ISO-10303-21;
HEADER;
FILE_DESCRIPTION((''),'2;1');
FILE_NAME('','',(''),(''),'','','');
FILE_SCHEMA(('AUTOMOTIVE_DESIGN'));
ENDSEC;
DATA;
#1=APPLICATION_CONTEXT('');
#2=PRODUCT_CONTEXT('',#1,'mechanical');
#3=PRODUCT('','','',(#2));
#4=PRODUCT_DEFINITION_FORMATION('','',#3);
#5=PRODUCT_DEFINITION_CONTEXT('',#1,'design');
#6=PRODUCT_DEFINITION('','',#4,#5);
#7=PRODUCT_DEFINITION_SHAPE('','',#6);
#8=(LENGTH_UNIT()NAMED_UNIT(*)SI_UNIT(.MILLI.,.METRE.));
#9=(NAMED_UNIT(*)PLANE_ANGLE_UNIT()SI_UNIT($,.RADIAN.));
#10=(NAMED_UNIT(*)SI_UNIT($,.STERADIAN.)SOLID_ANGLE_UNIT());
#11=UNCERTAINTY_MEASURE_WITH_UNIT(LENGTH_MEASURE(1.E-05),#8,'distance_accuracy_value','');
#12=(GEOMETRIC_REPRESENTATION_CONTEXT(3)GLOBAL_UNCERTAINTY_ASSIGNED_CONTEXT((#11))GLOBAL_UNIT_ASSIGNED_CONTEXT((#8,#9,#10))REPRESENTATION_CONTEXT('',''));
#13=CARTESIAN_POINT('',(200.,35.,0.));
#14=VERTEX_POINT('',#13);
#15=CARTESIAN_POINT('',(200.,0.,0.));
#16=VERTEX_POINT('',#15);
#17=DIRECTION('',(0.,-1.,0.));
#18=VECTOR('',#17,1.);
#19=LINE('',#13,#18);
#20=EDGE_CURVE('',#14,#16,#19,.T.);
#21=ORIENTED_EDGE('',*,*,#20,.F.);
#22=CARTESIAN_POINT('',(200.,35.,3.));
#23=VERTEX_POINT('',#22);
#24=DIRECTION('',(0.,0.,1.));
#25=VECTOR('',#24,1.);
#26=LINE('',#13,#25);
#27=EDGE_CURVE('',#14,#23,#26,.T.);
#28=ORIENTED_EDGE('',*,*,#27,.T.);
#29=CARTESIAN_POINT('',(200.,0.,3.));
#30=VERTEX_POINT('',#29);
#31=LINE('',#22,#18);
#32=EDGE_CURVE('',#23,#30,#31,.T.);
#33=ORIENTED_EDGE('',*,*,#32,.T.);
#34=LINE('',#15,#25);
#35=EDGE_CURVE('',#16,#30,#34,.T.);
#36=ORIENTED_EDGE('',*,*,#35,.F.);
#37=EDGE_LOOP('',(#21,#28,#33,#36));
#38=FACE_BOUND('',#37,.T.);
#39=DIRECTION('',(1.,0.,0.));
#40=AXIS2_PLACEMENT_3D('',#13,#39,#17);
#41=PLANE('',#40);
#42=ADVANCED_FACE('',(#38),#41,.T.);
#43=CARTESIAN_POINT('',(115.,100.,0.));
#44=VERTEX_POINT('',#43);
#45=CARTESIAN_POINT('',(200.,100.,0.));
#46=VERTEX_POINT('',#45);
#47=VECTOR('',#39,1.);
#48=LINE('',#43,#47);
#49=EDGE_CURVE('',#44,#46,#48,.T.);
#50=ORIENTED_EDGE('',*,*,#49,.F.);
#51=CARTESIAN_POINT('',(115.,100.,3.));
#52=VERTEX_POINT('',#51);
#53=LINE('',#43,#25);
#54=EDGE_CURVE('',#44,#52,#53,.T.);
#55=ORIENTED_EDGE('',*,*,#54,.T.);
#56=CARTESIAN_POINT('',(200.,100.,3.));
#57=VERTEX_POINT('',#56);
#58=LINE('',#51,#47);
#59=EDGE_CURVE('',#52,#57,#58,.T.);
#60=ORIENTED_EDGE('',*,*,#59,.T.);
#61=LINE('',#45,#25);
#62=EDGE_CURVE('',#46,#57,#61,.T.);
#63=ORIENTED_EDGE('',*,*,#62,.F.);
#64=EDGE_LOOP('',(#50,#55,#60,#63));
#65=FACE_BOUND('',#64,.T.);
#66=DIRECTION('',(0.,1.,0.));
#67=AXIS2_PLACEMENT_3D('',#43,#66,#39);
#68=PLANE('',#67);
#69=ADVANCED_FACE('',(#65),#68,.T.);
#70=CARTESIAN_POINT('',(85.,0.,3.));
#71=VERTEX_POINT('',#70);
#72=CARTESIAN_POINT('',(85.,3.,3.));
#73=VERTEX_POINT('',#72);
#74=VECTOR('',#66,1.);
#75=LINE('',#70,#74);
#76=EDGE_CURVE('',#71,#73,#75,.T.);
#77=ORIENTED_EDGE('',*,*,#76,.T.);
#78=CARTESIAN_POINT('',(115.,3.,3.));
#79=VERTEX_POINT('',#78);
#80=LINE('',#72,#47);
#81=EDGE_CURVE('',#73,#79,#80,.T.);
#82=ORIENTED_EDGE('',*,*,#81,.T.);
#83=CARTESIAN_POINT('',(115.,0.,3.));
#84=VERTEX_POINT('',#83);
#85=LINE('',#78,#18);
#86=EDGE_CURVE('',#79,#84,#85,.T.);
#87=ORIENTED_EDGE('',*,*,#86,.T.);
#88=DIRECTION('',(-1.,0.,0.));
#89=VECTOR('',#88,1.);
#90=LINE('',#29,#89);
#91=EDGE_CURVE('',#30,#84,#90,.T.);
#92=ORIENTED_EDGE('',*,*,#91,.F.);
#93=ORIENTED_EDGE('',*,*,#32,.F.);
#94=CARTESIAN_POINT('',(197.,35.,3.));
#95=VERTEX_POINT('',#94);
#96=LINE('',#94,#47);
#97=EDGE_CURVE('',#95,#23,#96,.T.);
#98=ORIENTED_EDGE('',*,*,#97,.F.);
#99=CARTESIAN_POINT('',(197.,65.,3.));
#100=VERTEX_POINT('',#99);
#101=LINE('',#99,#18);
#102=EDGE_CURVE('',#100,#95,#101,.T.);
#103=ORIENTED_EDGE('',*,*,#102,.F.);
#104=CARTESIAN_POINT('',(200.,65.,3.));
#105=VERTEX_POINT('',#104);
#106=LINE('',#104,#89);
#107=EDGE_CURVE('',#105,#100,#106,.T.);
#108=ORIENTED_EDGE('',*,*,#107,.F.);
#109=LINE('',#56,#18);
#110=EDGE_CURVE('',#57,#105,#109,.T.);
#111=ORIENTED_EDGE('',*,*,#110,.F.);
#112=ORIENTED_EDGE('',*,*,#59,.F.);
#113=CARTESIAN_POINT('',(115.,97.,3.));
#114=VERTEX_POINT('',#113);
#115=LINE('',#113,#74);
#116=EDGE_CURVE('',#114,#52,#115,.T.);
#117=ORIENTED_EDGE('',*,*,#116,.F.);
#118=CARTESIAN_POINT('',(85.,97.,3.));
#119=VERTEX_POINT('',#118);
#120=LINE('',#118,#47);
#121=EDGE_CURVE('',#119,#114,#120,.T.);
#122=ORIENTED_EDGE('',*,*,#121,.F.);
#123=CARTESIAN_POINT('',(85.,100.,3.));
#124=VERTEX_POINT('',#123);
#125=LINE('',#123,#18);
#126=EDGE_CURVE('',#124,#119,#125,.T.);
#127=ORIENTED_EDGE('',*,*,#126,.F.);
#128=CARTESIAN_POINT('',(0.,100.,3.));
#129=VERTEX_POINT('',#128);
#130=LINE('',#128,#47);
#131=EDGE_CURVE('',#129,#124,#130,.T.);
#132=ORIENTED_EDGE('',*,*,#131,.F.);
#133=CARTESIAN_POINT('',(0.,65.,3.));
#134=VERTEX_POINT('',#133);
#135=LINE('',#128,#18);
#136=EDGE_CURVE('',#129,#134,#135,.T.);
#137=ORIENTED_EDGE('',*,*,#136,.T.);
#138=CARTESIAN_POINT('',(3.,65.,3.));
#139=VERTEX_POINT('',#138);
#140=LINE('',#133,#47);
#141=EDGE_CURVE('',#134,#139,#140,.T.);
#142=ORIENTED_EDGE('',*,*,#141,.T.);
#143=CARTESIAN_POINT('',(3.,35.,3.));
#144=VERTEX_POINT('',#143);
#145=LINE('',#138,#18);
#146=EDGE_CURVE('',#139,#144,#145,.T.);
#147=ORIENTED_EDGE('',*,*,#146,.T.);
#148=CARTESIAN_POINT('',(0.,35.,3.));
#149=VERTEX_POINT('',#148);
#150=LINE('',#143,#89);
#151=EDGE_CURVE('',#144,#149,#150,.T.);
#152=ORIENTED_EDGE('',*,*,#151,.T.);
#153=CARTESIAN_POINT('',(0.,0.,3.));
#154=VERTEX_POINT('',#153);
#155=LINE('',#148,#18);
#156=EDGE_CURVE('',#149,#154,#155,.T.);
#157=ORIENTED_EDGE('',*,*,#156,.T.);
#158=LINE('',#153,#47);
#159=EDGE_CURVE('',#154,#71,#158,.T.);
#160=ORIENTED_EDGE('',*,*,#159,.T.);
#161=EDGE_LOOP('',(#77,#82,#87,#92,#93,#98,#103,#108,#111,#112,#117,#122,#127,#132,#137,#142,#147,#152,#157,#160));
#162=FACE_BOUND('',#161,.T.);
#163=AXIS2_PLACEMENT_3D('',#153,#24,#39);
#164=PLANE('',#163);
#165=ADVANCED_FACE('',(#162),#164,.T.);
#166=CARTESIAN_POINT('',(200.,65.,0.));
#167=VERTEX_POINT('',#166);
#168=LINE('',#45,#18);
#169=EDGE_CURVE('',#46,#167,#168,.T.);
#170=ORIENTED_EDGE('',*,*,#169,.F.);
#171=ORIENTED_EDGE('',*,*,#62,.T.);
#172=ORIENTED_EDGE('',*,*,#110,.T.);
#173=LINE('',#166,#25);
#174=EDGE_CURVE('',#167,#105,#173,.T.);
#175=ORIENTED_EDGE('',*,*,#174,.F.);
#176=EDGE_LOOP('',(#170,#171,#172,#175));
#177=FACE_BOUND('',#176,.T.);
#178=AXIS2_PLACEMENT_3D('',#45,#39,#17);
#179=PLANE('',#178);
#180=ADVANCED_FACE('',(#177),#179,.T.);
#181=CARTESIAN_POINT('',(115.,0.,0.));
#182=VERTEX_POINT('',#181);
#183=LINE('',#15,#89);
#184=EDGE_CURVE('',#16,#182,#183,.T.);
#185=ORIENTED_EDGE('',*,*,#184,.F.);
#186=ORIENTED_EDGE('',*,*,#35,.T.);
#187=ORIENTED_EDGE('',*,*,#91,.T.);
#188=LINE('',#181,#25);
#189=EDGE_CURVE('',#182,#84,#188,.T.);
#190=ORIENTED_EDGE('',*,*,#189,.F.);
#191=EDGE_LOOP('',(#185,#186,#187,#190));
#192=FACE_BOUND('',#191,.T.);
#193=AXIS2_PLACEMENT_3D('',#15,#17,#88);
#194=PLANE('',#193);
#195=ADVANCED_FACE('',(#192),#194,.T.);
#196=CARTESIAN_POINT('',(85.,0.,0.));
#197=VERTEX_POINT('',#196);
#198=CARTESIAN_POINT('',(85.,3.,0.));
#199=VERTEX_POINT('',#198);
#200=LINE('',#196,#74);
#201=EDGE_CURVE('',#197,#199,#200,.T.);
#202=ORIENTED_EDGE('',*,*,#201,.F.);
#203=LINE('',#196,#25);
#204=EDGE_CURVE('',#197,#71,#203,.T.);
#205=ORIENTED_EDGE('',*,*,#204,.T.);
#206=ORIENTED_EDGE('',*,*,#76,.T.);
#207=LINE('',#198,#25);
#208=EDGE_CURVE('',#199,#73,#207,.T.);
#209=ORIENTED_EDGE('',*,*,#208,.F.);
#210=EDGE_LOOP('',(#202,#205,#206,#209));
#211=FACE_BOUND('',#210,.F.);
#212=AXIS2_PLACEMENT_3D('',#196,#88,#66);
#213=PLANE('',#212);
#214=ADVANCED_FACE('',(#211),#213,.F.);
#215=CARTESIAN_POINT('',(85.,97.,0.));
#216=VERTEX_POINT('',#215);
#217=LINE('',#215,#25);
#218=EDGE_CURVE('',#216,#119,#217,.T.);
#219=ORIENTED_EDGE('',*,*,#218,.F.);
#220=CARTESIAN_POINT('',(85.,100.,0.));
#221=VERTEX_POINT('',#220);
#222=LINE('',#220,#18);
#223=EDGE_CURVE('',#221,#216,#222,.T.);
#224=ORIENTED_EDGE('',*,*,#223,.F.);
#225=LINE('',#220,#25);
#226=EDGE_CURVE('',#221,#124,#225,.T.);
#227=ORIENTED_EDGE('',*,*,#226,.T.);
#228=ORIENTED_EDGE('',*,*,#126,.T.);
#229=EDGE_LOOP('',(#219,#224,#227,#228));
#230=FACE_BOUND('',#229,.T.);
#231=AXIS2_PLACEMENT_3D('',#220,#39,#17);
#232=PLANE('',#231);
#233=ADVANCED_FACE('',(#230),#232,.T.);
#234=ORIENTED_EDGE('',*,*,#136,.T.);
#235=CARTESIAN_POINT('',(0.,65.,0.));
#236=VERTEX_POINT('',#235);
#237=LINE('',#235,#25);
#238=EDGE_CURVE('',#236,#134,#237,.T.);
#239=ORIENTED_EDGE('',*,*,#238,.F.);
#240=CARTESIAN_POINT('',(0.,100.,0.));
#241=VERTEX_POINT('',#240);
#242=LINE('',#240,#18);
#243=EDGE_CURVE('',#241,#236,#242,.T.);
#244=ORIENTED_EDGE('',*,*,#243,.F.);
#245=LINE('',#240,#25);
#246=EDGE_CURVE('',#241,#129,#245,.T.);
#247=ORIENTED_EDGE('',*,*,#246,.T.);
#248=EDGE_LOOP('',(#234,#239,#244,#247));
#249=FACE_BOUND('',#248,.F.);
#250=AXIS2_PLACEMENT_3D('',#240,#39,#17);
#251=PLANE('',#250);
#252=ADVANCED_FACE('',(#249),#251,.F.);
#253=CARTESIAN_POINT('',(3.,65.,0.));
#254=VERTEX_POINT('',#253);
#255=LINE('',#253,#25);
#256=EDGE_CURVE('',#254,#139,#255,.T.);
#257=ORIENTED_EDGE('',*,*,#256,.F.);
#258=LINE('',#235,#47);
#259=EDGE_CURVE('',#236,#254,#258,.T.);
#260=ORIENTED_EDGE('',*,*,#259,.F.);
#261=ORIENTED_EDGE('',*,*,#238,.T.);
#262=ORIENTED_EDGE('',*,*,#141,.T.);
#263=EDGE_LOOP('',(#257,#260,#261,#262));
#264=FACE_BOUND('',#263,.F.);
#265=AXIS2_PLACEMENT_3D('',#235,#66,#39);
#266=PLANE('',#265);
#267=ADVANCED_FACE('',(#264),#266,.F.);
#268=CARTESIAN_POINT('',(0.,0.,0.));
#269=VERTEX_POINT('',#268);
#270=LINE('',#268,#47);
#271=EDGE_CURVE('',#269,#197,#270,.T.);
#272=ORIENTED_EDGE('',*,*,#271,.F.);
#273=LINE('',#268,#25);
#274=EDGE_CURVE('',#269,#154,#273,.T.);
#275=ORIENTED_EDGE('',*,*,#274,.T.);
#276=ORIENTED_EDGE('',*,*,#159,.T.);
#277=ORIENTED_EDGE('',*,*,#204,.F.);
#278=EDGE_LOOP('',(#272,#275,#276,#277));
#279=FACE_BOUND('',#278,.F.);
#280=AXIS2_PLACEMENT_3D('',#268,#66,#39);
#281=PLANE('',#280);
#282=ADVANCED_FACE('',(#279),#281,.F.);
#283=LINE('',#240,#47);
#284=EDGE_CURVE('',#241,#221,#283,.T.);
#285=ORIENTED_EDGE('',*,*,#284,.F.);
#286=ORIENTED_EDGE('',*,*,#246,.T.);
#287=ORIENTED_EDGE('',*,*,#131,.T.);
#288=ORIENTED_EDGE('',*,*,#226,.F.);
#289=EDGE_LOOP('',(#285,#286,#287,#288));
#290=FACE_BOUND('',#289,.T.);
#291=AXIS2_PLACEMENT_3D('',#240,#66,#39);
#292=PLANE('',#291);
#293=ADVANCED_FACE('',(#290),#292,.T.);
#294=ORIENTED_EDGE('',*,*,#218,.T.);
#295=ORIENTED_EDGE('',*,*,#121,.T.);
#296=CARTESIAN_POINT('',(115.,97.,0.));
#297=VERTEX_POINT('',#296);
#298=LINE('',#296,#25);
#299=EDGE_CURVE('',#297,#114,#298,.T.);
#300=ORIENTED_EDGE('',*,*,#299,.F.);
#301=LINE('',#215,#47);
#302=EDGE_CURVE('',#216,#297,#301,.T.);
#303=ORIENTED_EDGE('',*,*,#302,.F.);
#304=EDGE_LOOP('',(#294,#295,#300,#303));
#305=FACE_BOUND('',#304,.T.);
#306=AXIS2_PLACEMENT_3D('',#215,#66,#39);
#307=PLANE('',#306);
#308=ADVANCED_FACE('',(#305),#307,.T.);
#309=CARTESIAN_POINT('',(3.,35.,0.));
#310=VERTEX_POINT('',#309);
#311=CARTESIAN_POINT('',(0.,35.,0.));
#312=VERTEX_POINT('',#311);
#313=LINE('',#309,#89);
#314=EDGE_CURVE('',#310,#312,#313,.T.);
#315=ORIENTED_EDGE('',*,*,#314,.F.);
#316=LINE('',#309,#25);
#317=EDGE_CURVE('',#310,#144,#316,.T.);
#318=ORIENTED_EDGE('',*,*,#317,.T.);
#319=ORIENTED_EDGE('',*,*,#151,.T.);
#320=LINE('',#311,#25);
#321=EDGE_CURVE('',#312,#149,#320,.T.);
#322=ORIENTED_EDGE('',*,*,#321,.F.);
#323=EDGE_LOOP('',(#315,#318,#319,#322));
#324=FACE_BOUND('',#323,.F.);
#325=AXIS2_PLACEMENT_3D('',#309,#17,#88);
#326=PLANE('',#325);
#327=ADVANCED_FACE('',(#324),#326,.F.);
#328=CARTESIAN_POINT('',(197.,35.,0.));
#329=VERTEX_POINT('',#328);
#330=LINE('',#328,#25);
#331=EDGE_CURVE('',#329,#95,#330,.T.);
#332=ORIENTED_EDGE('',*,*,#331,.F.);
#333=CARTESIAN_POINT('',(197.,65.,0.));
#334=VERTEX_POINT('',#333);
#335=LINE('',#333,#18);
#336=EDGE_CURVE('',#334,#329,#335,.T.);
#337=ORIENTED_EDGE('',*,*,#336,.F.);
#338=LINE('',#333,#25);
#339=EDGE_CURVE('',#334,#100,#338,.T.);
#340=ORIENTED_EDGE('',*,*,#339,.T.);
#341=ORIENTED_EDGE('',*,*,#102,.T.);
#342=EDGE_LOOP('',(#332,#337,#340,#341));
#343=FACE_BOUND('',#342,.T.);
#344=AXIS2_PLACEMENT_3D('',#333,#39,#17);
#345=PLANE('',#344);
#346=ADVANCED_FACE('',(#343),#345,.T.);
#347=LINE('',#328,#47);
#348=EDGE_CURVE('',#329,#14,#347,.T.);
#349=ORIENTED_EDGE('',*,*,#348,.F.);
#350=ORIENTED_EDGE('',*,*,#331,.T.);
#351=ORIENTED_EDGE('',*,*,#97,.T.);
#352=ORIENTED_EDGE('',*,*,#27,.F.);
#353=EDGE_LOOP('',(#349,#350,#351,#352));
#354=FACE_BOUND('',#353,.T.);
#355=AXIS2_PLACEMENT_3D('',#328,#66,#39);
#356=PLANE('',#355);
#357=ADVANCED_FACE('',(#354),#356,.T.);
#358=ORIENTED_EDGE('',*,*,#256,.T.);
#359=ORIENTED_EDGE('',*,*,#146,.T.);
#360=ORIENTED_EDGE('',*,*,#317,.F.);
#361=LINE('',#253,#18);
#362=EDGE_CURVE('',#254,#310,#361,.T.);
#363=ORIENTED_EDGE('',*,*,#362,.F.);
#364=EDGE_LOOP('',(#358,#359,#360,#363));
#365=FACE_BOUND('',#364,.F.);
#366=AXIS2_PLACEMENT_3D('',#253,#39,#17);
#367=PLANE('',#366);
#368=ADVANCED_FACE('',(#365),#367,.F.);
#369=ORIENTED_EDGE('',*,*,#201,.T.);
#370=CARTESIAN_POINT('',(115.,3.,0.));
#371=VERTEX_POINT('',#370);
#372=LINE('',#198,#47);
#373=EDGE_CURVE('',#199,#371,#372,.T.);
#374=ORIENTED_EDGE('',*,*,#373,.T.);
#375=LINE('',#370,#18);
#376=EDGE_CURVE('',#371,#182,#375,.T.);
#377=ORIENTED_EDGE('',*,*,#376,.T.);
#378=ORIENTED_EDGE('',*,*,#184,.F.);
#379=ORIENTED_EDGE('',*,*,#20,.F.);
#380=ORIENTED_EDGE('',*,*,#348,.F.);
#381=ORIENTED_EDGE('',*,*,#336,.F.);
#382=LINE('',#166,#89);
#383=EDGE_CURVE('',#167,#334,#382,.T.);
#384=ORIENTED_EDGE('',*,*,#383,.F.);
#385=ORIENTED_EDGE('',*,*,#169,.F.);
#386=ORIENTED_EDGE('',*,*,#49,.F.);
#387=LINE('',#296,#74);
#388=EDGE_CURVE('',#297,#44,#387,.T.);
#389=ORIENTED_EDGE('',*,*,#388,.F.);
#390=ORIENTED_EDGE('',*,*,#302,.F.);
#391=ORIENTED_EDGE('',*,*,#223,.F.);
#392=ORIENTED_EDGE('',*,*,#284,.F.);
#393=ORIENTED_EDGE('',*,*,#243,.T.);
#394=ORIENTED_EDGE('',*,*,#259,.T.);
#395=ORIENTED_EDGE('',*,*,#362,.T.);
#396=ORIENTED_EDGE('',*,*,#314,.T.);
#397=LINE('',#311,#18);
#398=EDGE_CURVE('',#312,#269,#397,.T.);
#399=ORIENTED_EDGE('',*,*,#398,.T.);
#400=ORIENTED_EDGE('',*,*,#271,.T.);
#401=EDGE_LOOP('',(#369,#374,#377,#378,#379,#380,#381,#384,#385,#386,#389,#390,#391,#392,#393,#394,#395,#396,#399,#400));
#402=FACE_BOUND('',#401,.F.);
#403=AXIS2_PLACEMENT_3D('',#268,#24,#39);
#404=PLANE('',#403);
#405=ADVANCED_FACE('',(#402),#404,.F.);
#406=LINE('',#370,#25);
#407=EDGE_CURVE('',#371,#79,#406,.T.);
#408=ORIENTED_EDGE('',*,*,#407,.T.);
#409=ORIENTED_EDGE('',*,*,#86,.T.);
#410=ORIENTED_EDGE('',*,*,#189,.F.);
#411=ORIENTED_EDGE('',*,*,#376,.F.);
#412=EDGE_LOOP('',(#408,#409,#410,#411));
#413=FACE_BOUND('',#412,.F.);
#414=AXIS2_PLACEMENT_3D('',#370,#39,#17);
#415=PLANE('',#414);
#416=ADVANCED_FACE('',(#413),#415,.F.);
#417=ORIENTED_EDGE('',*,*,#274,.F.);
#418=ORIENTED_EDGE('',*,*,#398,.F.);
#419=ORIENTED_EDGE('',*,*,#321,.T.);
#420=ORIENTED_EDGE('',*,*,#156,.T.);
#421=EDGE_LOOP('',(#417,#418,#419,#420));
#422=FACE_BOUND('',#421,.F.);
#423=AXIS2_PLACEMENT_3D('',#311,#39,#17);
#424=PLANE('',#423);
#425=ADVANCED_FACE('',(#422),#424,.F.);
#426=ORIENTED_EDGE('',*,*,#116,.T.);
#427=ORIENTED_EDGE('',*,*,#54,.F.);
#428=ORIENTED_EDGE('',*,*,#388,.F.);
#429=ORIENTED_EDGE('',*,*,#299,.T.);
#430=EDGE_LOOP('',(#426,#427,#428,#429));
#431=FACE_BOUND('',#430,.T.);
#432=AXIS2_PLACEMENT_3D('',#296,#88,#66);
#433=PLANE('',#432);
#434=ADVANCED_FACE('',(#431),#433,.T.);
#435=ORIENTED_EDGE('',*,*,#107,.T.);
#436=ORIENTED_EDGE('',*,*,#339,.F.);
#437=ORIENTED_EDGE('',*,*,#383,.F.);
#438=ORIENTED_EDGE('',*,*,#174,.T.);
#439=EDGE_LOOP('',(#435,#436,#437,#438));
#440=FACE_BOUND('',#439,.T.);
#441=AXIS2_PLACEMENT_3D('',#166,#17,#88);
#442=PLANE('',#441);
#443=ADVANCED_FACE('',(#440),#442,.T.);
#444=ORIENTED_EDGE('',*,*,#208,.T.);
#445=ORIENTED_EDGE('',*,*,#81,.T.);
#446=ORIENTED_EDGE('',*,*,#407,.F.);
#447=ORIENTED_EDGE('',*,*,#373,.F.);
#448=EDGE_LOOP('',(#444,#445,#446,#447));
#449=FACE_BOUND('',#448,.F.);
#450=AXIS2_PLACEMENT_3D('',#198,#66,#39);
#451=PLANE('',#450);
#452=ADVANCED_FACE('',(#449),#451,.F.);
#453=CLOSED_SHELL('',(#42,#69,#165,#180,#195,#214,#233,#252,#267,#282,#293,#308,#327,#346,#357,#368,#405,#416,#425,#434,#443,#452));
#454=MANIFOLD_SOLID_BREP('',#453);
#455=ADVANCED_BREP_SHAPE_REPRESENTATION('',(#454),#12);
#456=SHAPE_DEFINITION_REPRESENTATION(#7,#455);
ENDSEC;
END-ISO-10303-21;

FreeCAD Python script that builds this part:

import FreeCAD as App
import Part
import Sketcher


def add_polygon(sketch, points):
    """Adds a closed chain of lines whose ends are joined by coincident constraints."""
    first, n = sketch.GeometryCount, len(points)
    for a, b in zip(points, points[1:] + points[:1]):
        sketch.addGeometry(Part.LineSegment(App.Vector(*a, 0), App.Vector(*b, 0)), False)
    for i in range(n):
        sketch.addConstraint(Sketcher.Constraint("Coincident", first + i, 2, first + (i + 1) % n, 1))

doc = App.newDocument("Part")
body = doc.addObject("PartDesign::Body", "Body")

# Sketch on XY plane
sketch1 = doc.addObject("Sketcher::SketchObject", "Sketch")
body.addObject(sketch1)
sketch1.AttachmentSupport = (doc.XY_Plane, [""])
sketch1.MapMode = "FlatFace"
add_polygon(sketch1, [(0, 35), (0, 0), (85, 0), (85, 3), (115, 3), (115, 0), (200, 0), (200, 35), (197, 35), (197, 65), (200, 65), (200, 100), (115, 100), (115, 97), (85, 97), (85, 100), (0, 100), (0, 65), (3, 65), (3, 35)])  # lines 0-19
sketch1.addConstraint(Sketcher.Constraint("Vertical", 0))
sketch1.addConstraint(Sketcher.Constraint("Horizontal", 1))
sketch1.addConstraint(Sketcher.Constraint("Vertical", 2))
sketch1.addConstraint(Sketcher.Constraint("Horizontal", 3))
sketch1.addConstraint(Sketcher.Constraint("Vertical", 4))
sketch1.addConstraint(Sketcher.Constraint("Horizontal", 5))
sketch1.addConstraint(Sketcher.Constraint("Vertical", 6))
sketch1.addConstraint(Sketcher.Constraint("Horizontal", 7))
sketch1.addConstraint(Sketcher.Constraint("Vertical", 8))
sketch1.addConstraint(Sketcher.Constraint("Horizontal", 9))
sketch1.addConstraint(Sketcher.Constraint("Vertical", 10))
sketch1.addConstraint(Sketcher.Constraint("Horizontal", 11))
sketch1.addConstraint(Sketcher.Constraint("Vertical", 12))
sketch1.addConstraint(Sketcher.Constraint("Horizontal", 13))
sketch1.addConstraint(Sketcher.Constraint("Vertical", 14))
sketch1.addConstraint(Sketcher.Constraint("Horizontal", 15))
sketch1.addConstraint(Sketcher.Constraint("Vertical", 16))
sketch1.addConstraint(Sketcher.Constraint("Horizontal", 17))
sketch1.addConstraint(Sketcher.Constraint("Vertical", 18))
sketch1.addConstraint(Sketcher.Constraint("Horizontal", 19))
sketch1.addConstraint(Sketcher.Constraint("Coincident", 0, 2, -1, 1))
sketch1.addConstraint(Sketcher.Constraint("PointOnObject", 4, 2, -1))
sketch1.addConstraint(Sketcher.Constraint("PointOnObject", 15, 2, -2))
sketch1.addConstraint(Sketcher.Constraint("Horizontal", 11, 2, 14, 2))
sketch1.addConstraint(Sketcher.Constraint("Horizontal", 9, 2, 16, 2))
sketch1.addConstraint(Sketcher.Constraint("Horizontal", 7, 2, 18, 2))
sketch1.addConstraint(Sketcher.Constraint("Vertical", 6, 2, 9, 2))
sketch1.addConstraint(Sketcher.Constraint("Vertical", 4, 2, 11, 2))
sketch1.addConstraint(Sketcher.Constraint("Vertical", 2, 2, 13, 2))
sketch1.addConstraint(Sketcher.Constraint("Equal", 1, 5))
sketch1.addConstraint(Sketcher.Constraint("Equal", 9, 17))
sketch1.addConstraint(Sketcher.Constraint("Equal", 19, 2))
sketch1.addConstraint(Sketcher.Constraint("Equal", 13, 8))
sketch1.addConstraint(Sketcher.Constraint("Equal", 6, 10))
sketch1.addConstraint(Sketcher.Constraint("Equal", 4, 12))
sketch1.addConstraint(Sketcher.Constraint("DistanceX", 1, 1, 1, 2, 85.0))
sketch1.addConstraint(Sketcher.Constraint("DistanceX", 7, 2, 7, 1, 3.0))
sketch1.addConstraint(Sketcher.Constraint("DistanceY", 0, 2, 0, 1, 35.0))
sketch1.addConstraint(Sketcher.Constraint("DistanceX", -1, 1, 5, 2, 200.0))
pad1 = doc.addObject("PartDesign::Pad", "Pad")
body.addObject(pad1)
pad1.Profile = sketch1
pad1.Length = 3

doc.recompute()
